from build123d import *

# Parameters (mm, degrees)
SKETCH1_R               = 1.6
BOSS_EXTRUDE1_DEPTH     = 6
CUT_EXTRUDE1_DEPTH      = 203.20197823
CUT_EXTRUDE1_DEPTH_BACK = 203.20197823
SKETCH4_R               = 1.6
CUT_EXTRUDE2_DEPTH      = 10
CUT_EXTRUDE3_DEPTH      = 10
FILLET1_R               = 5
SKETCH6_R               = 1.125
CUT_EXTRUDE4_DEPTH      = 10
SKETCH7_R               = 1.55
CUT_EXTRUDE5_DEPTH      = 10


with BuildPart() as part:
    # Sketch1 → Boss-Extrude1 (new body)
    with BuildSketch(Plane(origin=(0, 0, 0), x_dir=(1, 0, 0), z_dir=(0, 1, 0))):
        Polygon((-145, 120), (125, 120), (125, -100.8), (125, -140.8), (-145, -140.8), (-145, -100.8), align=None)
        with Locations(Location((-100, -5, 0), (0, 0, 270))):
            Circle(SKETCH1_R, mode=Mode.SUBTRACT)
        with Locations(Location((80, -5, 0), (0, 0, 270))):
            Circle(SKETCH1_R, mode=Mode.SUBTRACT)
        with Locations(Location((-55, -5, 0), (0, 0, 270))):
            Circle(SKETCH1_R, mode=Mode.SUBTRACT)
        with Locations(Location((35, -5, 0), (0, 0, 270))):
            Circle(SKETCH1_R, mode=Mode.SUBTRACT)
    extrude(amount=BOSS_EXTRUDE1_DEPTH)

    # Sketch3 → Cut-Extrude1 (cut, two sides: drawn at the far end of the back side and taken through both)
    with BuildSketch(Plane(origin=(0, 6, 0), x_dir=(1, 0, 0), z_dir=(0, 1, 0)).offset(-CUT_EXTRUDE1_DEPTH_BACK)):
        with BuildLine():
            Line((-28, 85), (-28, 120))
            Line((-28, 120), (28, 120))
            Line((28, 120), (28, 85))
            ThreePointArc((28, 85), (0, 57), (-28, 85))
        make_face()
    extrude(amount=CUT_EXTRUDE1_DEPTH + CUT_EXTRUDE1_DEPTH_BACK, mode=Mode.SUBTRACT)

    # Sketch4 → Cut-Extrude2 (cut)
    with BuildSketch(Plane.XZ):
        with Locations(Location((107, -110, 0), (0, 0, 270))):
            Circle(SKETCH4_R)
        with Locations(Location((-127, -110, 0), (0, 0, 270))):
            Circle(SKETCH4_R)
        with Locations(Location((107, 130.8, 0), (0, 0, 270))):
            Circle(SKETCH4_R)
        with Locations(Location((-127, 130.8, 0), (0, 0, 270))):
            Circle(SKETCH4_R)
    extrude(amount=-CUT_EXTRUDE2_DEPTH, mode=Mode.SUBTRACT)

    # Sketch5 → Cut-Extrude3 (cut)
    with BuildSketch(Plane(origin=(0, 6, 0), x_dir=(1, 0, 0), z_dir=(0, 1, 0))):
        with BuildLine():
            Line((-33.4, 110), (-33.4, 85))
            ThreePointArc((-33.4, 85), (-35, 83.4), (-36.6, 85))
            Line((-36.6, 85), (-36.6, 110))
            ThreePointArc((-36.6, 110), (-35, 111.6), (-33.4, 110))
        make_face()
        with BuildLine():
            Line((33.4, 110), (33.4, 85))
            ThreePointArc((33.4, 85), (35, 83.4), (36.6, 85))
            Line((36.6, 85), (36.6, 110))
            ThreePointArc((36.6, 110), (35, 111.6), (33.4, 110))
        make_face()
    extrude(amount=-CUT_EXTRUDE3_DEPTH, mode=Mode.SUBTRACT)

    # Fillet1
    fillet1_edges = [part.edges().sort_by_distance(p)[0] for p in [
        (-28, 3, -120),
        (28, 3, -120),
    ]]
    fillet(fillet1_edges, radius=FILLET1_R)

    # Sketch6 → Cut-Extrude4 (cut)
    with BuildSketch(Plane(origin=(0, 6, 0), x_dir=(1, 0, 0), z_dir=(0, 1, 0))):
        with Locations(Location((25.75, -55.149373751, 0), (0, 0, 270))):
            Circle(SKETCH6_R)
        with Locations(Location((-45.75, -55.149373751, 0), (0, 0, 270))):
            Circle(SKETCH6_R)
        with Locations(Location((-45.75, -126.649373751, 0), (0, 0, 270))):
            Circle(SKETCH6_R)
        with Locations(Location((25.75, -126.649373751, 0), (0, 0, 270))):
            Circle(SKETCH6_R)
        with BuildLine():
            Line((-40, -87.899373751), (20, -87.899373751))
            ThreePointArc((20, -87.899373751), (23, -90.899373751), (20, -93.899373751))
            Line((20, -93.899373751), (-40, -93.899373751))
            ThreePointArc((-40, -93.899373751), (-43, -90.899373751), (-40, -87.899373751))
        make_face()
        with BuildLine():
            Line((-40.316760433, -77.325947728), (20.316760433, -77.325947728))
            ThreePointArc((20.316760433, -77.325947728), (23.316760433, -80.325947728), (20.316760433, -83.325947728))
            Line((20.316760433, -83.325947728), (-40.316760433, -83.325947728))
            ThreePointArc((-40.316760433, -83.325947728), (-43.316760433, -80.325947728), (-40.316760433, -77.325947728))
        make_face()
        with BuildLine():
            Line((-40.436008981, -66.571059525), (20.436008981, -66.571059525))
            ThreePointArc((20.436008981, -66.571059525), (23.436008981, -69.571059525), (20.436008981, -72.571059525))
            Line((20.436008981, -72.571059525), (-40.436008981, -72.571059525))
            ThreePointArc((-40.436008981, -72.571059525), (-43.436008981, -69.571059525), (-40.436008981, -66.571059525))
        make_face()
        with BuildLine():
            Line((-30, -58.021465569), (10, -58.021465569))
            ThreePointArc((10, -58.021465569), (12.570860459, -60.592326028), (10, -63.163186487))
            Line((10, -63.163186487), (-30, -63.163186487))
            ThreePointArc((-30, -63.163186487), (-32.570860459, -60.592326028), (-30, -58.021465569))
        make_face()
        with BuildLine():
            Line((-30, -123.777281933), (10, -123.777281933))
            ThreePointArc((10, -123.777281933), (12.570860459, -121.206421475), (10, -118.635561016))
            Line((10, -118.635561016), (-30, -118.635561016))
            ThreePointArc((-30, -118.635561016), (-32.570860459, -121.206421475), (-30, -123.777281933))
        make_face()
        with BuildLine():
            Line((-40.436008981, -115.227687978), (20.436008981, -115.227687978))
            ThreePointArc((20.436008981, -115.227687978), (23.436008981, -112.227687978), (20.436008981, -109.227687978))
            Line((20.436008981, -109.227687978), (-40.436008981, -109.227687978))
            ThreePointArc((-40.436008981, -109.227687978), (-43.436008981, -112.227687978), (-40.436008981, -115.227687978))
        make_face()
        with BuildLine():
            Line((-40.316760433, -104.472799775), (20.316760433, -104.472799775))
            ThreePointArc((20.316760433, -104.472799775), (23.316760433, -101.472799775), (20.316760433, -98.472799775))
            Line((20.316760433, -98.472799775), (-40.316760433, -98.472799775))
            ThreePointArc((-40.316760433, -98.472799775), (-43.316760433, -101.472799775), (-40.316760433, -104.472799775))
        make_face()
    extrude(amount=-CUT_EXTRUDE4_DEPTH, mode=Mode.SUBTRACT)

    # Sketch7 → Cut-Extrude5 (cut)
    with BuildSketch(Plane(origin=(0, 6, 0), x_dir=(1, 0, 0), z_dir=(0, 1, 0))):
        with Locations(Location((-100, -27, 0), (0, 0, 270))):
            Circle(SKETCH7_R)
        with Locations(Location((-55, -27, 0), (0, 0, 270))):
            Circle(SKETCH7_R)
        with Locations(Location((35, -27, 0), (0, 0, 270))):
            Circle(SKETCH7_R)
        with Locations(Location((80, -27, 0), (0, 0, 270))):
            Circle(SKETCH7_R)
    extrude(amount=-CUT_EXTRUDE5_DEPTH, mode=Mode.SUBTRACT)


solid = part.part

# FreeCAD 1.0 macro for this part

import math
import FreeCAD as App
import Part
import Sketcher

V = App.Vector
Q = App.Units.Quantity


def edges_at(feature, points):
    """Names of the edges that pass closest to the given points."""
    edges = feature.Shape.Edges
    near = lambda p: min(range(len(edges)), key=lambda i: edges[i].distToShape(Part.Vertex(*p))[0])
    return sorted({f"Edge{near(p) + 1}" for p in points})

doc = App.newDocument("Part")
body = doc.addObject("PartDesign::Body", "Body")

# Sketch on XZ plane
sketch1 = doc.addObject("Sketcher::SketchObject", "Sketch")
body.addObject(sketch1)
sketch1.AttachmentSupport = (doc.XZ_Plane, [""])
sketch1.MapMode = "FlatFace"
sketch1.addGeometry([
    Part.LineSegment(V(125, -120, 0), V(-145, -120, 0)),  # 0
    Part.LineSegment(V(-145, -120, 0), V(-145, 140.8, 0)),  # 1
    Part.LineSegment(V(-145, 140.8, 0), V(125, 140.8, 0)),  # 2
    Part.LineSegment(V(125, 140.8, 0), V(125, -120, 0)),  # 3
    Part.Circle(V(80, 5, 0), V(0, 0, 1), 1.6),  # 4
    Part.Circle(V(35, 5, 0), V(0, 0, 1), 1.6),  # 5
    Part.Circle(V(-55, 5, 0), V(0, 0, 1), 1.6),  # 6
    Part.Circle(V(-100, 5, 0), V(0, 0, 1), 1.6),  # 7
], False)
sketch1.addConstraint([
    Sketcher.Constraint("Coincident", 0, 2, 1, 1),
    Sketcher.Constraint("Coincident", 1, 2, 2, 1),
    Sketcher.Constraint("Coincident", 2, 2, 3, 1),
    Sketcher.Constraint("Coincident", 3, 2, 0, 1),
    Sketcher.Constraint("Horizontal", 0),
    Sketcher.Constraint("Vertical", 1),
    Sketcher.Constraint("Horizontal", 2),
    Sketcher.Constraint("Vertical", 3),
    Sketcher.Constraint("Equal", 4, 5),
    Sketcher.Constraint("Equal", 5, 6),
    Sketcher.Constraint("Equal", 6, 7),
    Sketcher.Constraint("Horizontal", 4, 3, 5, 3),
    Sketcher.Constraint("Horizontal", 5, 3, 6, 3),
    Sketcher.Constraint("Horizontal", 6, 3, 7, 3),
    Sketcher.Constraint("Diameter", 4, Q("3.2 mm")),
    Sketcher.Constraint("DistanceX", 0, 2, 0, 1, Q("270 mm")),
    Sketcher.Constraint("DistanceY", 1, 1, 1, 2, Q("260.8 mm")),
    Sketcher.Constraint("DistanceX", -1, 1, 4, 3, Q("80 mm")),
    Sketcher.Constraint("DistanceY", -1, 1, 4, 3, Q("5 mm")),
    Sketcher.Constraint("DistanceX", -1, 1, 5, 3, Q("35 mm")),
    Sketcher.Constraint("DistanceX", 6, 3, -1, 1, Q("55 mm")),
    Sketcher.Constraint("DistanceX", 7, 3, -1, 1, Q("100 mm")),
    Sketcher.Constraint("DistanceX", 0, 2, -1, 1, Q("145 mm")),
    Sketcher.Constraint("DistanceY", 0, 2, -1, 1, Q("120 mm")),
])
pad1 = doc.addObject("PartDesign::Pad", "Pad")
body.addObject(pad1)
pad1.Profile = sketch1
pad1.Length = 6
pad1.Reversed = True

# Sketch on XZ plane
sketch2 = doc.addObject("Sketcher::SketchObject", "Sketch001")
body.addObject(sketch2)
sketch2.AttachmentSupport = (doc.XZ_Plane, [""])
sketch2.MapMode = "FlatFace"
sketch2.AttachmentOffset = App.Placement(V(0, 0, -6), App.Rotation())
sketch2.addGeometry([
    Part.LineSegment(V(-28, -120, 0), V(-28, -85, 0)),
    Part.ArcOfCircle(Part.Circle(V(0, -85, 0), V(0, 0, 1), 28), math.radians(0), math.radians(180)),
    Part.LineSegment(V(28, -85, 0), V(28, -120, 0)),
    Part.LineSegment(V(28, -120, 0), V(-28, -120, 0)),
], False)
sketch2.addConstraint([
    Sketcher.Constraint("Tangent", 0, 2, 1, 2),
    Sketcher.Constraint("Tangent", 1, 1, 2, 1),
    Sketcher.Constraint("Coincident", 2, 2, 3, 1),
    Sketcher.Constraint("Coincident", 3, 2, 0, 1),
    Sketcher.Constraint("Vertical", 0),
    Sketcher.Constraint("Vertical", 2),
    Sketcher.Constraint("Horizontal", 3),
    Sketcher.Constraint("PointOnObject", 1, 3, -2),
    Sketcher.Constraint("Radius", 1, Q("28 mm")),
    Sketcher.Constraint("DistanceY", 0, 1, 0, 2, Q("35 mm")),
    Sketcher.Constraint("DistanceY", 1, 3, -1, 1, Q("85 mm")),
])
pocket1 = doc.addObject("PartDesign::Pocket", "Pocket")
body.addObject(pocket1)
pocket1.Profile = sketch2
pocket1.Type = "ThroughAll"
pocket1.Midplane = True

# Sketch on XZ plane
sketch3 = doc.addObject("Sketcher::SketchObject", "Sketch002")
body.addObject(sketch3)
sketch3.AttachmentSupport = (doc.XZ_Plane, [""])
sketch3.MapMode = "FlatFace"
sketch3.addGeometry([
    Part.Circle(V(107, -110, 0), V(0, 0, 1), 1.6),
    Part.Circle(V(-127, -110, 0), V(0, 0, 1), 1.6),
    Part.Circle(V(107, 130.8, 0), V(0, 0, 1), 1.6),
    Part.Circle(V(-127, 130.8, 0), V(0, 0, 1), 1.6),
], False)
sketch3.addConstraint([
    Sketcher.Constraint("Equal", 0, 1),
    Sketcher.Constraint("Equal", 1, 2),
    Sketcher.Constraint("Equal", 2, 3),
    Sketcher.Constraint("Horizontal", 0, 3, 1, 3),
    Sketcher.Constraint("Horizontal", 2, 3, 3, 3),
    Sketcher.Constraint("Vertical", 0, 3, 2, 3),
    Sketcher.Constraint("Vertical", 1, 3, 3, 3),
    Sketcher.Constraint("Diameter", 0, Q("3.2 mm")),
    Sketcher.Constraint("DistanceX", -1, 1, 0, 3, Q("107 mm")),
    Sketcher.Constraint("DistanceY", 0, 3, -1, 1, Q("110 mm")),
    Sketcher.Constraint("DistanceX", 1, 3, -1, 1, Q("127 mm")),
    Sketcher.Constraint("DistanceY", -1, 1, 2, 3, Q("130.8 mm")),
])
pocket2 = doc.addObject("PartDesign::Pocket", "Pocket001")
body.addObject(pocket2)
pocket2.Profile = sketch3
pocket2.Length = 10

# Sketch on XZ plane
sketch4 = doc.addObject("Sketcher::SketchObject", "Sketch003")
body.addObject(sketch4)
sketch4.AttachmentSupport = (doc.XZ_Plane, [""])
sketch4.MapMode = "FlatFace"
sketch4.AttachmentOffset = App.Placement(V(0, 0, -6), App.Rotation())
sketch4.addGeometry([
    Part.LineSegment(V(-33.4, -85, 0), V(-33.4, -110, 0)),  # 0
    Part.ArcOfCircle(Part.Circle(V(-35, -110, 0), V(0, 0, 1), 1.6), math.radians(180), math.radians(360)),  # 1
    Part.LineSegment(V(-36.6, -110, 0), V(-36.6, -85, 0)),  # 2
    Part.ArcOfCircle(Part.Circle(V(-35, -85, 0), V(0, 0, 1), 1.6), math.radians(0), math.radians(180)),  # 3
    Part.LineSegment(V(33.4, -110, 0), V(33.4, -85, 0)),  # 4
    Part.ArcOfCircle(Part.Circle(V(35, -85, 0), V(0, 0, 1), 1.6), math.radians(0), math.radians(180)),  # 5
    Part.LineSegment(V(36.6, -85, 0), V(36.6, -110, 0)),  # 6
    Part.ArcOfCircle(Part.Circle(V(35, -110, 0), V(0, 0, 1), 1.6), math.radians(180), math.radians(360)),  # 7
], False)
sketch4.addConstraint([
    Sketcher.Constraint("Tangent", 0, 2, 1, 2),
    Sketcher.Constraint("Tangent", 1, 1, 2, 1),
    Sketcher.Constraint("Tangent", 2, 2, 3, 2),
    Sketcher.Constraint("Tangent", 3, 1, 0, 1),
    Sketcher.Constraint("Tangent", 4, 2, 5, 2),
    Sketcher.Constraint("Tangent", 5, 1, 6, 1),
    Sketcher.Constraint("Tangent", 6, 2, 7, 2),
    Sketcher.Constraint("Tangent", 7, 1, 4, 1),
    Sketcher.Constraint("Vertical", 0),
    Sketcher.Constraint("Vertical", 2),
    Sketcher.Constraint("Vertical", 4),
    Sketcher.Constraint("Vertical", 6),
    Sketcher.Constraint("Equal", 3, 5),
    Sketcher.Constraint("Symmetric", 3, 3, 5, 3, -2),
    Sketcher.Constraint("Horizontal", 1, 3, 7, 3),
    Sketcher.Constraint("Radius", 1, Q("1.6 mm")),
    Sketcher.Constraint("DistanceY", 0, 2, 0, 1, Q("25 mm")),
    Sketcher.Constraint("DistanceX", 1, 3, -1, 1, Q("35 mm")),
    Sketcher.Constraint("DistanceY", 1, 3, -1, 1, Q("110 mm")),
])
pocket3 = doc.addObject("PartDesign::Pocket", "Pocket002")
body.addObject(pocket3)
pocket3.Profile = sketch4
pocket3.Length = 10
pocket3.Reversed = True
doc.recompute()

fillet = doc.addObject("PartDesign::Fillet", "Fillet")
body.addObject(fillet)
fillet.Base = (pocket3, edges_at(pocket3, [(-28, 3, -120), (28, 3, -120)]))
fillet.Radius = 5

# Sketch on XZ plane
sketch5 = doc.addObject("Sketcher::SketchObject", "Sketch004")
body.addObject(sketch5)
sketch5.AttachmentSupport = (doc.XZ_Plane, [""])
sketch5.MapMode = "FlatFace"
sketch5.AttachmentOffset = App.Placement(V(0, 0, -6), App.Rotation())
sketch5.addGeometry([
    Part.Circle(V(25.8, 55.1, 0), V(0, 0, 1), 1.1),  # 0
    Part.Circle(V(-45.8, 55.1, 0), V(0, 0, 1), 1.1),  # 1
    Part.Circle(V(-45.8, 126.6, 0), V(0, 0, 1), 1.1),  # 2
    Part.Circle(V(25.8, 126.6, 0), V(0, 0, 1), 1.1),  # 3
    Part.LineSegment(V(20, 87.9, 0), V(-40, 87.9, 0)),  # 4
    Part.ArcOfCircle(Part.Circle(V(-40, 90.9, 0), V(0, 0, 1), 3), math.radians(90), math.radians(270)),  # 5
    Part.LineSegment(V(-40, 93.9, 0), V(20, 93.9, 0)),  # 6
    Part.ArcOfCircle(Part.Circle(V(20, 90.9, 0), V(0, 0, 1), 3), math.radians(-90), math.radians(90)),  # 7
    Part.LineSegment(V(20.3, 77.3, 0), V(-40.3, 77.3, 0)),  # 8
    Part.ArcOfCircle(Part.Circle(V(-40.3, 80.3, 0), V(0, 0, 1), 3), math.radians(90), math.radians(270)),  # 9
    Part.LineSegment(V(-40.3, 83.3, 0), V(20.3, 83.3, 0)),  # 10
    Part.ArcOfCircle(Part.Circle(V(20.3, 80.3, 0), V(0, 0, 1), 3), math.radians(-90), math.radians(90)),  # 11
    Part.LineSegment(V(20.4, 66.6, 0), V(-40.4, 66.6, 0)),  # 12
    Part.ArcOfCircle(Part.Circle(V(-40.4, 69.6, 0), V(0, 0, 1), 3), math.radians(90), math.radians(270)),  # 13
    Part.LineSegment(V(-40.4, 72.6, 0), V(20.4, 72.6, 0)),  # 14
    Part.ArcOfCircle(Part.Circle(V(20.4, 69.6, 0), V(0, 0, 1), 3), math.radians(-90), math.radians(90)),  # 15
    Part.LineSegment(V(10, 58, 0), V(-30, 58, 0)),  # 16
    Part.ArcOfCircle(Part.Circle(V(-30, 60.6, 0), V(0, 0, 1), 2.6), math.radians(90), math.radians(270)),  # 17
    Part.LineSegment(V(-30, 63.2, 0), V(10, 63.2, 0)),  # 18
    Part.ArcOfCircle(Part.Circle(V(10, 60.6, 0), V(0, 0, 1), 2.6), math.radians(-90), math.radians(90)),  # 19
    Part.LineSegment(V(-30, 123.8, 0), V(10, 123.8, 0)),  # 20
    Part.ArcOfCircle(Part.Circle(V(10, 121.2, 0), V(0, 0, 1), 2.6), math.radians(-90), math.radians(90)),  # 21
    Part.LineSegment(V(10, 118.6, 0), V(-30, 118.6, 0)),  # 22
    Part.ArcOfCircle(Part.Circle(V(-30, 121.2, 0), V(0, 0, 1), 2.6), math.radians(90), math.radians(270)),  # 23
    Part.LineSegment(V(-40.4, 115.2, 0), V(20.4, 115.2, 0)),  # 24
    Part.ArcOfCircle(Part.Circle(V(20.4, 112.2, 0), V(0, 0, 1), 3), math.radians(-90), math.radians(90)),  # 25
    Part.LineSegment(V(20.4, 109.2, 0), V(-40.4, 109.2, 0)),  # 26
    Part.ArcOfCircle(Part.Circle(V(-40.4, 112.2, 0), V(0, 0, 1), 3), math.radians(90), math.radians(270)),  # 27
    Part.LineSegment(V(-40.3, 104.5, 0), V(20.3, 104.5, 0)),  # 28
    Part.ArcOfCircle(Part.Circle(V(20.3, 101.5, 0), V(0, 0, 1), 3), math.radians(-90), math.radians(90)),  # 29
    Part.LineSegment(V(20.3, 98.5, 0), V(-40.3, 98.5, 0)),  # 30
    Part.ArcOfCircle(Part.Circle(V(-40.3, 101.5, 0), V(0, 0, 1), 3), math.radians(90), math.radians(270)),  # 31
], False)
sketch5.addConstraint([
    Sketcher.Constraint("Tangent", 4, 2, 5, 2),
    Sketcher.Constraint("Tangent", 5, 1, 6, 1),
    Sketcher.Constraint("Tangent", 6, 2, 7, 2),
    Sketcher.Constraint("Tangent", 7, 1, 4, 1),
    Sketcher.Constraint("Tangent", 8, 2, 9, 2),
    Sketcher.Constraint("Tangent", 9, 1, 10, 1),
    Sketcher.Constraint("Tangent", 10, 2, 11, 2),
    Sketcher.Constraint("Tangent", 11, 1, 8, 1),
    Sketcher.Constraint("Tangent", 12, 2, 13, 2),
    Sketcher.Constraint("Tangent", 13, 1, 14, 1),
    Sketcher.Constraint("Tangent", 14, 2, 15, 2),
    Sketcher.Constraint("Tangent", 15, 1, 12, 1),
    Sketcher.Constraint("Tangent", 16, 2, 17, 2),
    Sketcher.Constraint("Tangent", 17, 1, 18, 1),
    Sketcher.Constraint("Tangent", 18, 2, 19, 2),
    Sketcher.Constraint("Tangent", 19, 1, 16, 1),
    Sketcher.Constraint("Tangent", 20, 2, 21, 2),
    Sketcher.Constraint("Tangent", 21, 1, 22, 1),
    Sketcher.Constraint("Tangent", 22, 2, 23, 2),
    Sketcher.Constraint("Tangent", 23, 1, 20, 1),
    Sketcher.Constraint("Tangent", 24, 2, 25, 2),
    Sketcher.Constraint("Tangent", 25, 1, 26, 1),
    Sketcher.Constraint("Tangent", 26, 2, 27, 2),
    Sketcher.Constraint("Tangent", 27, 1, 24, 1),
    Sketcher.Constraint("Tangent", 28, 2, 29, 2),
    Sketcher.Constraint("Tangent", 29, 1, 30, 1),
    Sketcher.Constraint("Tangent", 30, 2, 31, 2),
    Sketcher.Constraint("Tangent", 31, 1, 28, 1),
    Sketcher.Constraint("Horizontal", 4),
    Sketcher.Constraint("Horizontal", 6),
    Sketcher.Constraint("Horizontal", 8),
    Sketcher.Constraint("Horizontal", 10),
    Sketcher.Constraint("Horizontal", 12),
    Sketcher.Constraint("Horizontal", 14),
    Sketcher.Constraint("Horizontal", 16),
    Sketcher.Constraint("Horizontal", 18),
    Sketcher.Constraint("Horizontal", 20),
    Sketcher.Constraint("Horizontal", 22),
    Sketcher.Constraint("Horizontal", 24),
    Sketcher.Constraint("Horizontal", 26),
    Sketcher.Constraint("Horizontal", 28),
    Sketcher.Constraint("Horizontal", 30),
    Sketcher.Constraint("Equal", 0, 1),
    Sketcher.Constraint("Equal", 1, 2),
    Sketcher.Constraint("Equal", 2, 3),
    Sketcher.Constraint("Equal", 7, 9),
    Sketcher.Constraint("Equal", 11, 13),
    Sketcher.Constraint("Equal", 19, 21),
    Sketcher.Constraint("Equal", 15, 25),
    Sketcher.Constraint("Equal", 27, 29),
    Sketcher.Constraint("Horizontal", 0, 3, 1, 3),
    Sketcher.Constraint("Horizontal", 2, 3, 3, 3),
    Sketcher.Constraint("Vertical", 1, 3, 2, 3),
    Sketcher.Constraint("Vertical", 0, 3, 3, 3),
    Sketcher.Constraint("Vertical", 19, 3, 21, 3),
    Sketcher.Constraint("Vertical", 17, 3, 23, 3),
    Sketcher.Constraint("Vertical", 15, 3, 25, 3),
    Sketcher.Constraint("Vertical", 13, 3, 27, 3),
    Sketcher.Constraint("Vertical", 11, 3, 29, 3),
    Sketcher.Constraint("Vertical", 9, 3, 31, 3),
    Sketcher.Constraint("Radius", 5, Q("3 mm")),
    Sketcher.Constraint("Diameter", 0, Q("2.25 mm")),
    Sketcher.Constraint("DistanceX", 4, 2, 4, 1, Q("60 mm")),
    Sketcher.Constraint("DistanceX", 16, 2, 16, 1, Q("40 mm")),
    Sketcher.Constraint("DistanceX", 5, 3, -1, 1, Q("40 mm")),
    Sketcher.Constraint("DistanceX", 17, 3, -1, 1, Q("30 mm")),
    Sketcher.Constraint("DistanceX", 1, 3, 0, 3, Q("71.5 mm")),
    Sketcher.Constraint("DistanceY", 1, 3, 2, 3, Q("71.5 mm")),
    Sketcher.Constraint("DistanceX", -1, 1, 0, 3, Q("25.75 mm")),
    Sketcher.Constraint("Radius", 17, Q("2.57086 mm")),
    Sketcher.Constraint("DistanceY", 1, 3, 5, 3, Q("35.75 mm")),
    Sketcher.Constraint("DistanceX", 8, 2, 8, 1, Q("60.633521 mm")),
    Sketcher.Constraint("DistanceY", -1, 1, 29, 3, Q("101.4728 mm")),
    Sketcher.Constraint("DistanceX", 12, 2, 12, 1, Q("60.872018 mm")),
    Sketcher.Constraint("DistanceX", 9, 3, -1, 1, Q("40.31676 mm")),
    Sketcher.Constraint("DistanceX", 13, 3, -1, 1, Q("40.436009 mm")),
    Sketcher.Constraint("DistanceY", -1, 1, 13, 3, Q("69.57106 mm")),
    Sketcher.Constraint("DistanceY", -1, 1, 21, 3, Q("121.206421 mm")),
    Sketcher.Constraint("DistanceY", 13, 3, 9, 3, Q("10.754888 mm")),
    Sketcher.Constraint("DistanceY", 17, 3, 9, 3, Q("19.733622 mm")),
    Sketcher.Constraint("DistanceY", 11, 3, 25, 3, Q("31.90174 mm")),
    Sketcher.Constraint("DistanceY", 1, 3, 16, 2, Q("2.872092 mm")),
])
pocket4 = doc.addObject("PartDesign::Pocket", "Pocket003")
body.addObject(pocket4)
pocket4.Profile = sketch5
pocket4.Length = 10
pocket4.Reversed = True

# Sketch on XZ plane
sketch6 = doc.addObject("Sketcher::SketchObject", "Sketch005")
body.addObject(sketch6)
sketch6.AttachmentSupport = (doc.XZ_Plane, [""])
sketch6.MapMode = "FlatFace"
sketch6.AttachmentOffset = App.Placement(V(0, 0, -6), App.Rotation())
sketch6.addGeometry([
    Part.Circle(V(-100, 27, 0), V(0, 0, 1), 1.6),
    Part.Circle(V(-55, 27, 0), V(0, 0, 1), 1.6),
    Part.Circle(V(35, 27, 0), V(0, 0, 1), 1.6),
    Part.Circle(V(80, 27, 0), V(0, 0, 1), 1.6),
], False)
sketch6.addConstraint([
    Sketcher.Constraint("Equal", 0, 1),
    Sketcher.Constraint("Equal", 1, 2),
    Sketcher.Constraint("Equal", 2, 3),
    Sketcher.Constraint("Horizontal", 0, 3, 1, 3),
    Sketcher.Constraint("Horizontal", 1, 3, 2, 3),
    Sketcher.Constraint("Horizontal", 2, 3, 3, 3),
    Sketcher.Constraint("Diameter", 0, Q("3.1 mm")),
    Sketcher.Constraint("DistanceX", 0, 3, -1, 1, Q("100 mm")),
    Sketcher.Constraint("DistanceY", -1, 1, 0, 3, Q("27 mm")),
    Sketcher.Constraint("DistanceX", 1, 3, -1, 1, Q("55 mm")),
    Sketcher.Constraint("DistanceX", -1, 1, 2, 3, Q("35 mm")),
    Sketcher.Constraint("DistanceX", -1, 1, 3, 3, Q("80 mm")),
])
pocket5 = doc.addObject("PartDesign::Pocket", "Pocket004")
body.addObject(pocket5)
pocket5.Profile = sketch6
pocket5.Length = 10
pocket5.Reversed = True

doc.recompute()
